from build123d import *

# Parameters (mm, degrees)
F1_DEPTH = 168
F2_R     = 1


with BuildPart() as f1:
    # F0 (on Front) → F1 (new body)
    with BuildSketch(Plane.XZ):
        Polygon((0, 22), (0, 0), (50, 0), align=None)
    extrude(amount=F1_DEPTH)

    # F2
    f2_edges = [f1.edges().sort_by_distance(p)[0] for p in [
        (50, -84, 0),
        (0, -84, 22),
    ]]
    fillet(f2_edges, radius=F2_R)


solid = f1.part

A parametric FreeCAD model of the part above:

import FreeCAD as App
import Part
import Sketcher

V = App.Vector


def edges_at(feature, points):
    """Names of the edges that pass closest to the given points."""
    edges = feature.Shape.Edges
    near = lambda p: min(range(len(edges)), key=lambda i: edges[i].distToShape(Part.Vertex(*p))[0])
    return sorted({f"Edge{near(p) + 1}" for p in points})


def add_polygon(sketch, points):
    """Adds a closed chain of lines whose ends are joined by coincident constraints."""
    first, n = sketch.GeometryCount, len(points)
    for a, b in zip(points, points[1:] + points[:1]):
        sketch.addGeometry(Part.LineSegment(App.Vector(*a, 0), App.Vector(*b, 0)), False)
    for i in range(n):
        sketch.addConstraint(Sketcher.Constraint("Coincident", first + i, 2, first + (i + 1) % n, 1))

doc = App.newDocument("Part")
body = doc.addObject("PartDesign::Body", "Body")

sketch1 = body.newObject("Sketcher::SketchObject", "Sketch")
sketch1.AttachmentSupport = (doc.getObject("XZ_Plane"), [""])
sketch1.MapMode = "FlatFace"
add_polygon(sketch1, [(0, 22), (0, 0), (50, 0)])
sketch1.addConstraint([
    Sketcher.Constraint("Vertical", 0),
    Sketcher.Constraint("Horizontal", 1),
    Sketcher.Constraint("Coincident", 0, 2, -1, 1),
    Sketcher.Constraint("DistanceX", 1, 1, 1, 2, 50.0),
    Sketcher.Constraint("DistanceY", 0, 2, 0, 1, 22.0),
])
pad1 = body.newObject("PartDesign::Pad", "Pad")
pad1.Profile = sketch1
pad1.Length = 168
doc.recompute()

fillet = body.newObject("PartDesign::Fillet", "Fillet")
fillet.Base = (pad1, edges_at(pad1, [(50, -84, 0), (0, -84, 22)]))
fillet.Radius = 1

doc.recompute()
